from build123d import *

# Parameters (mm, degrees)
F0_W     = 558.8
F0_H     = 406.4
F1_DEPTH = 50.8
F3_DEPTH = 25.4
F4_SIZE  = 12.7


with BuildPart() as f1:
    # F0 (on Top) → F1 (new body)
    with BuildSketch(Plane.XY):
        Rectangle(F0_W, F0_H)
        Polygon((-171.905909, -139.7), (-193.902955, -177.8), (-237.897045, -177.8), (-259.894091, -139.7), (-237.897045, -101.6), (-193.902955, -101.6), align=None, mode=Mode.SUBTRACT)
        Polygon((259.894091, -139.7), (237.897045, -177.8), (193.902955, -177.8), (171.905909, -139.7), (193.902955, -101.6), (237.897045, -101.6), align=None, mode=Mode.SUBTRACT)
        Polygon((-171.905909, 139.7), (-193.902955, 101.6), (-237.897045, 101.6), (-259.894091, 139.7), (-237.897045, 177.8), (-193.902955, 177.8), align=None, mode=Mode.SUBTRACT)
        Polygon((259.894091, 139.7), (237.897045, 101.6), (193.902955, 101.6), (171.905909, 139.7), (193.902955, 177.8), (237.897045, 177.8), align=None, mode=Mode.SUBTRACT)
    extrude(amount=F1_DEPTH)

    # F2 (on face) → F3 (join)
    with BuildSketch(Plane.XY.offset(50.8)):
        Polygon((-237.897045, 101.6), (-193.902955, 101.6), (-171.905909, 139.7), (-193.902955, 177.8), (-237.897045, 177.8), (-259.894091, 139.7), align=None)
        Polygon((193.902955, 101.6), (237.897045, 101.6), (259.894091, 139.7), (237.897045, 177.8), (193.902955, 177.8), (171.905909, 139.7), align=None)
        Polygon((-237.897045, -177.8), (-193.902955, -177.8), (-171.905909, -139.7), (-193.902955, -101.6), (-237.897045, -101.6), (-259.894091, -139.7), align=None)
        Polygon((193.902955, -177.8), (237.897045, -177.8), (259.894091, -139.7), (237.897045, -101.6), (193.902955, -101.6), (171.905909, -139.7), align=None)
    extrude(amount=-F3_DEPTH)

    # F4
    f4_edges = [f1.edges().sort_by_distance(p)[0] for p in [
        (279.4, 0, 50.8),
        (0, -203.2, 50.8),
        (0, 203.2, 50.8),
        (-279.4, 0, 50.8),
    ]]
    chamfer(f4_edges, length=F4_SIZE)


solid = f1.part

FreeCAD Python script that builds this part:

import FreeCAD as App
import Part
import Sketcher
from FreeCAD import Vector
Q = App.Units.Quantity


def edges_at(feature, points):
    """Names of the edges that pass closest to the given points."""
    edges = feature.Shape.Edges
    near = lambda p: min(range(len(edges)), key=lambda i: edges[i].distToShape(Part.Vertex(*p))[0])
    return sorted({f"Edge{near(p) + 1}" for p in points})


def add_polygon(sketch, points):
    """Adds a closed chain of lines whose ends are joined by coincident constraints."""
    first, n = sketch.GeometryCount, len(points)
    for a, b in zip(points, points[1:] + points[:1]):
        sketch.addGeometry(Part.LineSegment(App.Vector(*a, 0), App.Vector(*b, 0)), False)
    for i in range(n):
        sketch.addConstraint(Sketcher.Constraint("Coincident", first + i, 2, first + (i + 1) % n, 1))

doc = App.newDocument("Part")
body = doc.addObject("PartDesign::Body", "Body")

# Sketch on XY plane
sketch1 = body.newObject("Sketcher::SketchObject", "Sketch")
sketch1.AttachmentSupport = (doc.getObject("XY_Plane"), [""])
sketch1.MapMode = "FlatFace"
add_polygon(sketch1, [(-279, 203), (-279, -203), (279, -203), (279, 203)])  # lines 0-3
add_polygon(sketch1, [(-194, -102), (-172, -140), (-194, -178), (-238, -178), (-260, -140), (-238, -102)])  # lines 4-9
add_polygon(sketch1, [(238, -102), (260, -140), (238, -178), (194, -178), (172, -140), (194, -102)])  # lines 10-15
add_polygon(sketch1, [(-194, 178), (-172, 140), (-194, 102), (-238, 102), (-260, 140), (-238, 178)])  # lines 16-21
add_polygon(sketch1, [(238, 178), (260, 140), (238, 102), (194, 102), (172, 140), (194, 178)])  # lines 22-27
sketch1.addConstraint([
    Sketcher.Constraint("Vertical", 0),
    Sketcher.Constraint("Horizontal", 1),
    Sketcher.Constraint("Vertical", 2),
    Sketcher.Constraint("Horizontal", 3),
    Sketcher.Constraint("Horizontal", 6),
    Sketcher.Constraint("Horizontal", 9),
    Sketcher.Constraint("Horizontal", 12),
    Sketcher.Constraint("Horizontal", 15),
    Sketcher.Constraint("Horizontal", 18),
    Sketcher.Constraint("Horizontal", 21),
    Sketcher.Constraint("Horizontal", 24),
    Sketcher.Constraint("Horizontal", 27),
    Sketcher.Constraint("Symmetric", 0, 2, 2, 2, -1, 1),
    Sketcher.Constraint("Symmetric", 13, 2, 16, 2, -1, 1),
    Sketcher.Constraint("Symmetric", 14, 2, 17, 2, -1, 1),
    Sketcher.Constraint("Symmetric", 10, 2, 19, 2, -1, 1),
    Sketcher.Constraint("Symmetric", 11, 2, 20, 2, -1, 1),
    Sketcher.Constraint("Symmetric", 7, 2, 22, 2, -1, 1),
    Sketcher.Constraint("Symmetric", 8, 2, 23, 2, -1, 1),
    Sketcher.Constraint("Symmetric", 4, 2, 25, 2, -1, 1),
    Sketcher.Constraint("Symmetric", 5, 2, 26, 2, -1, 1),
    Sketcher.Constraint("Symmetric", 7, 2, 10, 2, -2),
    Sketcher.Constraint("Symmetric", 6, 2, 11, 2, -2),
    Sketcher.Constraint("Symmetric", 4, 2, 13, 2, -2),
    Sketcher.Constraint("Symmetric", 9, 2, 14, 2, -2),
    Sketcher.Constraint("Parallel", 4, 7),
    Sketcher.Constraint("Parallel", 5, 8),
    Sketcher.Constraint("Parallel", 7, 10),
    Sketcher.Constraint("Parallel", 8, 11),
    Sketcher.Constraint("Parallel", 10, 13),
    Sketcher.Constraint("Parallel", 13, 16),
    Sketcher.Constraint("Parallel", 16, 19),
    Sketcher.Constraint("Parallel", 19, 22),
    Sketcher.Constraint("Parallel", 22, 25),
    Sketcher.Constraint("Horizontal", 4, 2, 7, 2),
    Sketcher.Constraint("Vertical", 6, 2, 8, 2),
    Sketcher.Constraint("DistanceX", 1, 1, 1, 2, Q("22 in")),
    Sketcher.Constraint("DistanceY", 0, 2, 0, 1, Q("16 in")),
    Sketcher.Constraint("DistanceY", 5, 2, -1, 1, Q("7 in")),
    Sketcher.Constraint("DistanceY", 8, 2, -1, 1, Q("4 in")),
    Sketcher.Constraint("Angle", 4, Q("-59.999999 deg")),
    Sketcher.Constraint("DistanceX", 4, 2, 10, 2, Q("17 in")),
    Sketcher.Constraint("DistanceX", 6, 2, 6, 1, 43.99409),
])
pad1 = body.newObject("PartDesign::Pad", "Pad")
pad1.Profile = sketch1
pad1.Length = Q("2 in")

# Sketch on XY plane
sketch2 = body.newObject("Sketcher::SketchObject", "Sketch001")
sketch2.AttachmentSupport = (doc.getObject("XY_Plane"), [""])
sketch2.MapMode = "FlatFace"
sketch2.AttachmentOffset = App.Placement(Vector(0, 0, 2 * 25.4), App.Rotation())
add_polygon(sketch2, [(-238, 102), (-194, 102), (-172, 140), (-194, 178), (-238, 178), (-260, 140)])  # lines 0-5
add_polygon(sketch2, [(194, 102), (238, 102), (260, 140), (238, 178), (194, 178), (172, 140)])  # lines 6-11
add_polygon(sketch2, [(-238, -178), (-194, -178), (-172, -140), (-194, -102), (-238, -102), (-260, -140)])  # lines 12-17
add_polygon(sketch2, [(194, -178), (238, -178), (260, -140), (238, -102), (194, -102), (172, -140)])  # lines 18-23
sketch2.addConstraint([
    Sketcher.Constraint("Horizontal", 0),
    Sketcher.Constraint("Horizontal", 3),
    Sketcher.Constraint("Horizontal", 6),
    Sketcher.Constraint("Horizontal", 9),
    Sketcher.Constraint("Horizontal", 12),
    Sketcher.Constraint("Horizontal", 15),
    Sketcher.Constraint("Horizontal", 18),
    Sketcher.Constraint("Horizontal", 21),
    Sketcher.Constraint("Symmetric", 9, 2, 12, 2, -1, 1),
    Sketcher.Constraint("Symmetric", 10, 2, 13, 2, -1, 1),
    Sketcher.Constraint("Symmetric", 11, 2, 14, 2, -1, 1),
    Sketcher.Constraint("Symmetric", 7, 2, 16, 2, -1, 1),
    Sketcher.Constraint("Symmetric", 3, 2, 18, 2, -1, 1),
    Sketcher.Constraint("Symmetric", 4, 2, 19, 2, -1, 1),
    Sketcher.Constraint("Symmetric", 5, 2, 20, 2, -1, 1),
    Sketcher.Constraint("Symmetric", 1, 2, 22, 2, -1, 1),
    Sketcher.Constraint("Symmetric", 5, 2, 6, 2, -2),
    Sketcher.Constraint("Symmetric", 4, 2, 7, 2, -2),
    Sketcher.Constraint("Symmetric", 3, 2, 8, 2, -2),
    Sketcher.Constraint("Symmetric", 1, 2, 10, 2, -2),
    Sketcher.Constraint("Parallel", 1, 4),
    Sketcher.Constraint("Parallel", 2, 5),
    Sketcher.Constraint("Parallel", 4, 7),
    Sketcher.Constraint("Parallel", 7, 10),
    Sketcher.Constraint("Parallel", 8, 11),
    Sketcher.Constraint("Parallel", 13, 16),
    Sketcher.Constraint("Parallel", 14, 17),
    Sketcher.Constraint("Parallel", 19, 22),
    Sketcher.Constraint("Parallel", 20, 23),
    Sketcher.Constraint("Horizontal", 1, 2, 4, 2),
    Sketcher.Constraint("Vertical", 0, 2, 2, 2),
    Sketcher.Constraint("DistanceY", -1, 1, 0, 2, Q("4 in")),
    Sketcher.Constraint("DistanceY", -1, 1, 2, 2, Q("7 in")),
    Sketcher.Constraint("Angle", 1, Q("59.999999 deg")),
    Sketcher.Constraint("DistanceX", 0, 2, 6, 2, Q("17 in")),
    Sketcher.Constraint("DistanceX", 0, 1, 0, 2, 43.99409),
])
pad2 = body.newObject("PartDesign::Pad", "Pad001")
pad2.Profile = sketch2
pad2.Length = Q("1 in")
pad2.Reversed = True
doc.recompute()

chamfer = body.newObject("PartDesign::Chamfer", "Chamfer")
chamfer.Base = (pad2, edges_at(pad2, [
    (279.4, 0, 50.8),
    (0, -203.2, 50.8),
    (0, 203.2, 50.8),
    (-279.4, 0, 50.8),
]))
chamfer.Size = Q("0.5 in")

doc.recompute()
